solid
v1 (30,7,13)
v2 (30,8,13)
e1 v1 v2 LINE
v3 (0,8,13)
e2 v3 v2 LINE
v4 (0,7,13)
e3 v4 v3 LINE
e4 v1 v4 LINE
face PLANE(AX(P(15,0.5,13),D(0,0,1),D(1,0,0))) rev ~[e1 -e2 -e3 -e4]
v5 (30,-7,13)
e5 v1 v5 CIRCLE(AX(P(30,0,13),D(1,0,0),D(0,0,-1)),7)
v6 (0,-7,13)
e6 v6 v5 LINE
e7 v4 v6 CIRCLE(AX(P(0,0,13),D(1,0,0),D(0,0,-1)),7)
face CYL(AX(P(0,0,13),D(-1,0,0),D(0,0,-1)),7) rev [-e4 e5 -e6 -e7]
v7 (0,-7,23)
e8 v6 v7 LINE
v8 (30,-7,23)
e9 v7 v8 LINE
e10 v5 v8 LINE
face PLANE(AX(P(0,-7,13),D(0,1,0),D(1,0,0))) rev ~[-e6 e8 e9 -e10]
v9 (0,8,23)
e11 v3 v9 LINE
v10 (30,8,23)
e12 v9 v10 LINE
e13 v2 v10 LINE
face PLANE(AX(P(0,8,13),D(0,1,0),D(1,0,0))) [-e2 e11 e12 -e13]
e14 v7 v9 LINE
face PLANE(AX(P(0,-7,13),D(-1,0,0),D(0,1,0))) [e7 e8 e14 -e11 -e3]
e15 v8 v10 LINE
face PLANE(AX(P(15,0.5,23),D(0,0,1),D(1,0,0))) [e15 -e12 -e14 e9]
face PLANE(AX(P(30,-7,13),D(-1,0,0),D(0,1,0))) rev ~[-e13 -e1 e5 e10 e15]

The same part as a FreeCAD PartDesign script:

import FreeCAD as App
import Part
import Sketcher
Q = App.Units.Quantity


def add_polygon(sketch, points):
    """Adds a closed chain of lines whose ends are joined by coincident constraints."""
    first, n = sketch.GeometryCount, len(points)
    for a, b in zip(points, points[1:] + points[:1]):
        sketch.addGeometry(Part.LineSegment(App.Vector(*a, 0), App.Vector(*b, 0)), False)
    for i in range(n):
        sketch.addConstraint(Sketcher.Constraint("Coincident", first + i, 2, first + (i + 1) % n, 1))

doc = App.newDocument("Part")
body = doc.addObject("PartDesign::Body", "Body")

sketch1 = body.newObject("Sketcher::SketchObject", "Sketch")
sketch1.AttachmentSupport = (doc.getObject("XY_Plane"), [""])
sketch1.MapMode = "FlatFace"
sketch1.addGeometry(Part.Circle(App.Vector(0, 0, 0), App.Vector(0, 0, 1), 7), False)
sketch1.addConstraint(Sketcher.Constraint("Coincident", 0, 3, -1, 1))
sketch1.addConstraint(Sketcher.Constraint("Diameter", 0, Q("14 mm")))
pad1 = body.newObject("PartDesign::Pad", "Pad")
pad1.Profile = sketch1
pad1.Length = 30
body2 = doc.addObject("PartDesign::Body", "Body001")
doc.recompute()

body.Placement = App.Placement(App.Vector(0, 0, 0), App.Rotation(App.Vector(0, 1, 0), 90))
boolean = body2.newObject("PartDesign::Boolean", "Boolean")
boolean.Type = "Fuse"
boolean.addObjects([body])
body3 = doc.addObject("PartDesign::Body", "Body002")
doc.recompute()

body2.Placement = App.Placement(App.Vector(0, 0, 13), App.Rotation(App.Vector(0, 0, 1), 0))
boolean2 = body3.newObject("PartDesign::Boolean", "Boolean001")
boolean2.Type = "Fuse"
boolean2.addObjects([body2])
body4 = doc.addObject("PartDesign::Body", "Body003")

sketch2 = body4.newObject("Sketcher::SketchObject", "Sketch001")
sketch2.AttachmentSupport = (doc.getObject("XY_Plane003"), [""])
sketch2.MapMode = "FlatFace"
sketch2.AttachmentOffset = App.Placement(App.Vector(0, 0, 13), App.Rotation())
add_polygon(sketch2, [(0, 8), (0, -7), (30, -7), (30, 8)])
sketch2.addConstraint(Sketcher.Constraint("Vertical", 0))
sketch2.addConstraint(Sketcher.Constraint("Horizontal", 1))
sketch2.addConstraint(Sketcher.Constraint("Vertical", 2))
sketch2.addConstraint(Sketcher.Constraint("Horizontal", 3))
sketch2.addConstraint(Sketcher.Constraint("PointOnObject", 0, 2, -2))
sketch2.addConstraint(Sketcher.Constraint("DistanceX", 1, 1, 1, 2, Q("30 mm")))
sketch2.addConstraint(Sketcher.Constraint("DistanceY", 0, 2, 0, 1, Q("15 mm")))
sketch2.addConstraint(Sketcher.Constraint("DistanceY", 0, 2, -1, 1, Q("7 mm")))
pad2 = body4.newObject("PartDesign::Pad", "Pad001")
pad2.Profile = sketch2
pad2.Length = 10
doc.recompute()

boolean3 = body4.newObject("PartDesign::Boolean", "Boolean002")
boolean3.Type = "Cut"
boolean3.addObjects([body3])

doc.recompute()
